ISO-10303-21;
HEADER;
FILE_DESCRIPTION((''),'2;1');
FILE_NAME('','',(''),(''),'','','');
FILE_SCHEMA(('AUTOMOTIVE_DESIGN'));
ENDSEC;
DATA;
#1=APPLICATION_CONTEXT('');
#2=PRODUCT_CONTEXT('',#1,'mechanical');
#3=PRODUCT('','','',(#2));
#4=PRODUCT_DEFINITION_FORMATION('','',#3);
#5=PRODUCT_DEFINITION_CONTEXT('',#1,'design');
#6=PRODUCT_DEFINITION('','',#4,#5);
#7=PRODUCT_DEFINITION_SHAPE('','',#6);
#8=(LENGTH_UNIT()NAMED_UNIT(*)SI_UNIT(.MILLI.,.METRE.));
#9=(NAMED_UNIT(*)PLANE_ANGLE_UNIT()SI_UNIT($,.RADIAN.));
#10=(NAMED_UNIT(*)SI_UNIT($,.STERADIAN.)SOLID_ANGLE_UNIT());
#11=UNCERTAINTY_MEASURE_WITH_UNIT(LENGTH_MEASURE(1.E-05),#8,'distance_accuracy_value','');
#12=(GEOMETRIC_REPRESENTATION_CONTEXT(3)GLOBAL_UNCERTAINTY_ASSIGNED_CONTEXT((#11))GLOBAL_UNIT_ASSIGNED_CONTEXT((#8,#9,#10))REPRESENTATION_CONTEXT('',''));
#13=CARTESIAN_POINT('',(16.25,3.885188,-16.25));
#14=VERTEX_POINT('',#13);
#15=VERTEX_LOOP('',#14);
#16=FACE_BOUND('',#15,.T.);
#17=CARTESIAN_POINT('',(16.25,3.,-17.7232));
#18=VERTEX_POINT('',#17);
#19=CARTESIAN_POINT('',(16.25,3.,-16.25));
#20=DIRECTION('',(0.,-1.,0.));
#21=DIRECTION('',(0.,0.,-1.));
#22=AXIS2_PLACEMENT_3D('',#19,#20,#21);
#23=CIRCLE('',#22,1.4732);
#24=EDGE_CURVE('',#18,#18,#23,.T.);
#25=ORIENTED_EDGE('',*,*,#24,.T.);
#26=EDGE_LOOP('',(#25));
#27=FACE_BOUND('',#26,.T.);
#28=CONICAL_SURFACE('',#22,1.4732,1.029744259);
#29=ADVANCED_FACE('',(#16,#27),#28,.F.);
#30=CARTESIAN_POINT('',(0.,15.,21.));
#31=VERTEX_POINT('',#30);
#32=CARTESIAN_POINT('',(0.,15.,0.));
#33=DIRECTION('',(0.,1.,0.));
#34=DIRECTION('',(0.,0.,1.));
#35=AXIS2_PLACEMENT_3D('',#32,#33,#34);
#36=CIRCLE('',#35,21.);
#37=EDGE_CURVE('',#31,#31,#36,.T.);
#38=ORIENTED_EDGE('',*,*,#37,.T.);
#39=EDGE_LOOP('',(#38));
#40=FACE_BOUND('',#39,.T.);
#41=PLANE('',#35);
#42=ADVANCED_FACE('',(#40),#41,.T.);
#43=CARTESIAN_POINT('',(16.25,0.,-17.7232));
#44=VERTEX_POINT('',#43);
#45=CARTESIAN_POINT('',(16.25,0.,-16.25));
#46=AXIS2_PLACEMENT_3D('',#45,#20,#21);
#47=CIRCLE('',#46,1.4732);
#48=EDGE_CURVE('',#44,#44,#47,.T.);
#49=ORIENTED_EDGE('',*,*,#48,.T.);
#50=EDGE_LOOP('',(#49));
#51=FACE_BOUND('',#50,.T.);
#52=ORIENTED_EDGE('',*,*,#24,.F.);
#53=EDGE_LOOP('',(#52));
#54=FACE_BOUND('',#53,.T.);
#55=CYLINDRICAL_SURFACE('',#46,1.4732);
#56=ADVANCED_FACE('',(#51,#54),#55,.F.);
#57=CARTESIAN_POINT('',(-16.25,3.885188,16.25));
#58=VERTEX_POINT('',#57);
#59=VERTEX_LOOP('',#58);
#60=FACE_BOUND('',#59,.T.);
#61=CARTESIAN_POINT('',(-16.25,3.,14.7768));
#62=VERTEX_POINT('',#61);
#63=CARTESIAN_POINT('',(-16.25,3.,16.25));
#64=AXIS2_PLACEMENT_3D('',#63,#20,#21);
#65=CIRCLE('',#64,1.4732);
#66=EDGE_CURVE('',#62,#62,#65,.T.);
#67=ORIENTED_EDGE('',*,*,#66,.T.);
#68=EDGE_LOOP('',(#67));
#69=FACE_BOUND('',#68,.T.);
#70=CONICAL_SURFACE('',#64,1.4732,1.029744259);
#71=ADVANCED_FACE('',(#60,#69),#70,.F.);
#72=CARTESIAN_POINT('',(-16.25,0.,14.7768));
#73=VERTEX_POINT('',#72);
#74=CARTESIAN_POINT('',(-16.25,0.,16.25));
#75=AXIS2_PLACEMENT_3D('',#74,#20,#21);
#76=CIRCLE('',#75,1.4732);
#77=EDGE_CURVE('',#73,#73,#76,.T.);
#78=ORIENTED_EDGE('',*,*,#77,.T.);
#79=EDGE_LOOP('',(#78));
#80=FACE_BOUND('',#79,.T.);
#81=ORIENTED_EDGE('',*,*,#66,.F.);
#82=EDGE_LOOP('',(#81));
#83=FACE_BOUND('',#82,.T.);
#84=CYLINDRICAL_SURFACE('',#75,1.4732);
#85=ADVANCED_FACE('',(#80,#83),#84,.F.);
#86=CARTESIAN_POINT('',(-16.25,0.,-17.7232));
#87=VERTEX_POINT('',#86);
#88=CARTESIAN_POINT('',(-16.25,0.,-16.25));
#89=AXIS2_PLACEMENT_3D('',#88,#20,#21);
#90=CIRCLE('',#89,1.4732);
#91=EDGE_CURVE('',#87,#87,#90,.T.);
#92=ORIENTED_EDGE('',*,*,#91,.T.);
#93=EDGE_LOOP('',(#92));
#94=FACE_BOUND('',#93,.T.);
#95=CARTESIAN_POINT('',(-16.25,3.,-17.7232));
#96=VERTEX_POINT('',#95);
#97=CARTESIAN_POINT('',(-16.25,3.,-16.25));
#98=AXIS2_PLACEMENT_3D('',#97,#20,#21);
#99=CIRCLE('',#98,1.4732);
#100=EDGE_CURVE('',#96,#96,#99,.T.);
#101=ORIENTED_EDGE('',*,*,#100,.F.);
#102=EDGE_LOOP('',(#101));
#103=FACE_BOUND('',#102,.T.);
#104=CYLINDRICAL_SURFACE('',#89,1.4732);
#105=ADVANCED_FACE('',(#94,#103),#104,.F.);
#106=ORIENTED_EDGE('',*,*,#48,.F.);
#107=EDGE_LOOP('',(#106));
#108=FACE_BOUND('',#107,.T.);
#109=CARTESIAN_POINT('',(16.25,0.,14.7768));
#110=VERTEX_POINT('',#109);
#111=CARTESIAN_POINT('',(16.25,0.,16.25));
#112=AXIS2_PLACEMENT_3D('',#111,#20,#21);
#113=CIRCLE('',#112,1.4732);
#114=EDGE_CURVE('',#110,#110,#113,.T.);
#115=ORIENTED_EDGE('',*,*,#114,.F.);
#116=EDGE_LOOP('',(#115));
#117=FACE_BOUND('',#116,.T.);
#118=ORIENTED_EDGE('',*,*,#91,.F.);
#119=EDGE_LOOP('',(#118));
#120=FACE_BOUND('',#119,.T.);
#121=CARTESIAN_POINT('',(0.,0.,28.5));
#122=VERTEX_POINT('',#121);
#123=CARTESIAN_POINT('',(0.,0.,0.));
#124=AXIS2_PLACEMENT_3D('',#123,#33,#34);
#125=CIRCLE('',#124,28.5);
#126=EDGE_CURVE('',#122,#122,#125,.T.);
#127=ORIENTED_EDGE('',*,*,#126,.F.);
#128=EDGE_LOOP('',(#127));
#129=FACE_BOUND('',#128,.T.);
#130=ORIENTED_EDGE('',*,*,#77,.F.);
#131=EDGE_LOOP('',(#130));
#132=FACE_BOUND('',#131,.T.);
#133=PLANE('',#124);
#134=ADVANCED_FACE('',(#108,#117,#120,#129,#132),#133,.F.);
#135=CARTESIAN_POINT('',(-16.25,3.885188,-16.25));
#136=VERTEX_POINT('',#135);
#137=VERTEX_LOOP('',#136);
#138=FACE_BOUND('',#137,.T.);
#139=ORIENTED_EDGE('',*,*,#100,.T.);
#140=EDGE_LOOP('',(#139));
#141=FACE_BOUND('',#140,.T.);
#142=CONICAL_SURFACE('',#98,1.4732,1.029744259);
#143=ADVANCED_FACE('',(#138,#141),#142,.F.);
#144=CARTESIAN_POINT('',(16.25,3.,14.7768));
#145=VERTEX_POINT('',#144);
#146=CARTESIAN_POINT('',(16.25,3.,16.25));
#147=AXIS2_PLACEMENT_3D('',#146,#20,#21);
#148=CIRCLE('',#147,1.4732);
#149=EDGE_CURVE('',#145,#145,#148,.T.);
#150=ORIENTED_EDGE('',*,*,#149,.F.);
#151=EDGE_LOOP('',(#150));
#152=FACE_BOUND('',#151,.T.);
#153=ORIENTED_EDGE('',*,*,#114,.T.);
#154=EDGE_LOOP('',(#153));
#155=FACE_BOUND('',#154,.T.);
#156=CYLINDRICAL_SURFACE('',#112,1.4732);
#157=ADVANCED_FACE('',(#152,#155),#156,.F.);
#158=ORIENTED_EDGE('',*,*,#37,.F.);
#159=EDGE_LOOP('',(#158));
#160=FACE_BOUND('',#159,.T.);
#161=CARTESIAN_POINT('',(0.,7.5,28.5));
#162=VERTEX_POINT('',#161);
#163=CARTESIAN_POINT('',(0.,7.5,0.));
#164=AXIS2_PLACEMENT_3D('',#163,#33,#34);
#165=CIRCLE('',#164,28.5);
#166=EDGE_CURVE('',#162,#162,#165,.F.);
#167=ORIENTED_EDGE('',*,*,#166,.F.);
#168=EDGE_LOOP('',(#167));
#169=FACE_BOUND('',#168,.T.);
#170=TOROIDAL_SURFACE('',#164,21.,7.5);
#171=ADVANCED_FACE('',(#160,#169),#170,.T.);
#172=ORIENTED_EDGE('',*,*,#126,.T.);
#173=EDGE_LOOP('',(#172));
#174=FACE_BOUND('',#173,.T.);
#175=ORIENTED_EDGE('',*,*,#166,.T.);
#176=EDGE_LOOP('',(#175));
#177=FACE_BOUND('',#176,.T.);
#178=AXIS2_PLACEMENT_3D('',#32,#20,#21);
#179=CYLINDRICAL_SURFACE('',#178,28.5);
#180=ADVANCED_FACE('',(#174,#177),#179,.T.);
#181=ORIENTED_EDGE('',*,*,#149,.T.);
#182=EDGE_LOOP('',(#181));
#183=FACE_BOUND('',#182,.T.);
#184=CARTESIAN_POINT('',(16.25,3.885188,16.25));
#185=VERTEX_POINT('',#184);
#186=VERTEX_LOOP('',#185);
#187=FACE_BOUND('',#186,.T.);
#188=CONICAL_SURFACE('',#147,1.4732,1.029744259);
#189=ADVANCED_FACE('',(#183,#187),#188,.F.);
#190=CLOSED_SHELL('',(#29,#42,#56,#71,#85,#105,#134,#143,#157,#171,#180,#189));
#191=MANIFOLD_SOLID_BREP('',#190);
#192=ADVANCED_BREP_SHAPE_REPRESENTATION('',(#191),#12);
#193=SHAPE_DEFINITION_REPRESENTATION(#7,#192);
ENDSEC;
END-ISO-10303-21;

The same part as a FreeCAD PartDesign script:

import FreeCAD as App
import Part
import Sketcher

V = App.Vector
Q = App.Units.Quantity


def edges_at(feature, points):
    """Names of the edges that pass closest to the given points."""
    edges = feature.Shape.Edges
    near = lambda p: min(range(len(edges)), key=lambda i: edges[i].distToShape(Part.Vertex(*p))[0])
    return sorted({f"Edge{near(p) + 1}" for p in points})

doc = App.newDocument("Part")
body = doc.addObject("PartDesign::Body", "Body")

# Sketch on XZ plane
sketch1 = doc.addObject("Sketcher::SketchObject", "Sketch")
body.addObject(sketch1)
sketch1.AttachmentSupport = (doc.XZ_Plane, [""])
sketch1.MapMode = "FlatFace"
sketch1.addGeometry(Part.Circle(V(0, 0, 0), V(0, 0, 1), 28), False)
sketch1.addConstraint([
    Sketcher.Constraint("Coincident", 0, 3, -1, 1),
    Sketcher.Constraint("Diameter", 0, Q("57 mm")),
])
pad1 = doc.addObject("PartDesign::Pad", "Pad")
body.addObject(pad1)
pad1.Profile = sketch1
pad1.Length = 15
pad1.Reversed = True
doc.recompute()

fillet = doc.addObject("PartDesign::Fillet", "Fillet")
body.addObject(fillet)
fillet.Base = (pad1, edges_at(pad1, [(0, 15, -28.5)]))
fillet.Radius = 7.5

# Sketch on XZ plane
sketch2 = doc.addObject("Sketcher::SketchObject", "Sketch001")
body.addObject(sketch2)
sketch2.AttachmentSupport = (doc.XZ_Plane, [""])
sketch2.MapMode = "FlatFace"
sketch2.addGeometry([
    Part.Circle(V(16.2, -16.2, 0), V(0, 0, 1), 1.5),
    Part.Circle(V(-16.2, -16.2, 0), V(0, 0, 1), 1.5),
    Part.Circle(V(-16.2, 16.2, 0), V(0, 0, 1), 1.5),
    Part.Circle(V(16.2, 16.2, 0), V(0, 0, 1), 1.5),
], False)
sketch2.addConstraint([
    Sketcher.Constraint("Equal", 0, 1),
    Sketcher.Constraint("Equal", 1, 2),
    Sketcher.Constraint("Equal", 2, 3),
    Sketcher.Constraint("Symmetric", 0, 3, 2, 3, -1, 1),
    Sketcher.Constraint("Symmetric", 1, 3, 3, 3, -1, 1),
    Sketcher.Constraint("Symmetric", 0, 3, 1, 3, -2),
    Sketcher.Constraint("Diameter", 0, Q("2.9464 mm")),
    Sketcher.Constraint("DistanceX", 1, 3, 0, 3, Q("32.5 mm")),
    Sketcher.Constraint("DistanceY", 1, 3, 2, 3, Q("32.5 mm")),
])
doc.recompute()
hole = doc.addObject("PartDesign::Hole", "Hole")
body.addObject(hole)
hole.Profile = sketch2
hole.ThreadType = "None"
hole.Diameter = 2.9464
hole.DepthType = "Dimension"
hole.Depth = 3
hole.DrillPoint = "Angled"
hole.DrillPointAngle = 118

doc.recompute()
